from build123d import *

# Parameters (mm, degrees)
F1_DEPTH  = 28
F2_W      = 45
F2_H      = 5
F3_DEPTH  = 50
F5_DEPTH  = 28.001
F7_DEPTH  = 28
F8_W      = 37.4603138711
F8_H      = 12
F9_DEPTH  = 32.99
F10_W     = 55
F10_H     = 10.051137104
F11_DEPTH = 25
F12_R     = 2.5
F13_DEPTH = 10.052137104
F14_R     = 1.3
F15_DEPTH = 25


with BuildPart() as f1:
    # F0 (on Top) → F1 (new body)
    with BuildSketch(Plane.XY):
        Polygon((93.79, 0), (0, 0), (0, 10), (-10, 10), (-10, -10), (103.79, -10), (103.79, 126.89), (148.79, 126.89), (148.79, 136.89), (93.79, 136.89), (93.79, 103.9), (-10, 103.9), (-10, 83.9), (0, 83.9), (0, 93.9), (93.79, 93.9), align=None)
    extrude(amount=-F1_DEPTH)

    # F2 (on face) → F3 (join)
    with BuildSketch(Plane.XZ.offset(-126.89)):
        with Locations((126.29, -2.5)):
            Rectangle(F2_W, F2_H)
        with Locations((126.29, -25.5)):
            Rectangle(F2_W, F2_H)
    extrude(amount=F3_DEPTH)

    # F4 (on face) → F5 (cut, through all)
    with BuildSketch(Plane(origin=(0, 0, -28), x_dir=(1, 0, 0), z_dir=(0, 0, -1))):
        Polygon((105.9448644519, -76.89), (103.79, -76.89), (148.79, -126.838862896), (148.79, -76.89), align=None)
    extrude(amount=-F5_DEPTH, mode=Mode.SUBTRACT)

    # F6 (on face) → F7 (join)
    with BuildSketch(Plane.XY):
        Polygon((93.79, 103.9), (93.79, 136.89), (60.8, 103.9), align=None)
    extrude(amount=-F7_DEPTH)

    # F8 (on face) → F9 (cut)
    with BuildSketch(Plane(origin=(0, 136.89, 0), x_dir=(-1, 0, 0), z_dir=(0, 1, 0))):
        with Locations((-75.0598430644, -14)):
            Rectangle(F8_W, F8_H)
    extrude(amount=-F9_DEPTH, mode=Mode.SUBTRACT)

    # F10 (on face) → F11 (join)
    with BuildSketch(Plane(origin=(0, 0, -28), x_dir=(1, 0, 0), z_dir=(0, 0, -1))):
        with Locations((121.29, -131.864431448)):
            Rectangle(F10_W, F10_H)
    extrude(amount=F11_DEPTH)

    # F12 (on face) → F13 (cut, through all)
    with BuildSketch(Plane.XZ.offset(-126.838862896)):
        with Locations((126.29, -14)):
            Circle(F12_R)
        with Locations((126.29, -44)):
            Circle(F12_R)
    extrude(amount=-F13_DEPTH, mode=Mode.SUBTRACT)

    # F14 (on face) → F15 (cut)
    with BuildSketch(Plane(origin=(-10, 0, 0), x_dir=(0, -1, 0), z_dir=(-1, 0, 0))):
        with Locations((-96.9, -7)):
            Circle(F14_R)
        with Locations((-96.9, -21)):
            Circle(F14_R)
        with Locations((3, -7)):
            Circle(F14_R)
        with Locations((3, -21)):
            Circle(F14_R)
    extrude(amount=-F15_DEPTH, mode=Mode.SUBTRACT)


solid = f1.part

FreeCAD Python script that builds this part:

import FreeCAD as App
import Part
import Sketcher
Q = App.Units.Quantity

doc = App.newDocument("Part")
params = doc.addObject("Spreadsheet::Sheet", "Params")
for row, (alias, value) in enumerate([
    ("sketch1_width", "10 mm"),
    ("sketch1_width2", "45 mm"),
    ("sketch1_width3", "55 mm"),
    ("sketch1_height", "20 mm"),
    ("sketch1_height2", "93.9 mm"),
    ("pad1_length", "28 mm"),
    ("sketch2_width", "45 mm"),
    ("sketch2_height", "5 mm"),
    ("pad2_length", "50 mm"),
    ("sketch3_width", "45 mm"),
    ("sketch4_width", "32.99 mm"),
    ("pad3_length", "28 mm"),
    ("sketch5_height", "12 mm"),
    ("pocket2_length", "32.99 mm"),
    ("sketch6_width", "55 mm"),
    ("pad4_length", "25 mm"),
    ("sketch7_diameter", "5 mm"),
    ("sketch8_diameter", "2.6 mm"),
    ("pocket4_length", "25 mm"),
], start=1):
    params.set(f"A{row}", alias)
    params.set(f"B{row}", "=" + value)
    params.setAlias(f"B{row}", alias)

body = doc.addObject("PartDesign::Body", "Body")

sketch1 = doc.addObject("Sketcher::SketchObject", "Sketch")
body.addObject(sketch1)
sketch1.AttachmentSupport = (doc.XY_Plane, [""])
sketch1.MapMode = "FlatFace"
sketch1.addGeometry(Part.LineSegment(App.Vector(93.79, 0, 0), App.Vector(0, 0, 0)), False)
sketch1.addGeometry(Part.LineSegment(App.Vector(0, 0, 0), App.Vector(0, 10, 0)), False)
sketch1.addGeometry(Part.LineSegment(App.Vector(0, 10, 0), App.Vector(-10, 10, 0)), False)
sketch1.addGeometry(Part.LineSegment(App.Vector(-10, 10, 0), App.Vector(-10, -10, 0)), False)
sketch1.addGeometry(Part.LineSegment(App.Vector(-10, -10, 0), App.Vector(103.79, -10, 0)), False)
sketch1.addGeometry(Part.LineSegment(App.Vector(103.79, -10, 0), App.Vector(103.79, 126.89, 0)), False)
sketch1.addGeometry(Part.LineSegment(App.Vector(103.79, 126.89, 0), App.Vector(148.79, 126.89, 0)), False)
sketch1.addGeometry(Part.LineSegment(App.Vector(148.79, 126.89, 0), App.Vector(148.79, 136.89, 0)), False)
sketch1.addGeometry(Part.LineSegment(App.Vector(148.79, 136.89, 0), App.Vector(93.79, 136.89, 0)), False)
sketch1.addGeometry(Part.LineSegment(App.Vector(93.79, 136.89, 0), App.Vector(93.79, 103.9, 0)), False)
sketch1.addGeometry(Part.LineSegment(App.Vector(93.79, 103.9, 0), App.Vector(-10, 103.9, 0)), False)
sketch1.addGeometry(Part.LineSegment(App.Vector(-10, 103.9, 0), App.Vector(-10, 83.9, 0)), False)
sketch1.addGeometry(Part.LineSegment(App.Vector(-10, 83.9, 0), App.Vector(0, 83.9, 0)), False)
sketch1.addGeometry(Part.LineSegment(App.Vector(0, 83.9, 0), App.Vector(0, 93.9, 0)), False)
sketch1.addGeometry(Part.LineSegment(App.Vector(0, 93.9, 0), App.Vector(93.79, 93.9, 0)), False)
sketch1.addGeometry(Part.LineSegment(App.Vector(93.79, 93.9, 0), App.Vector(93.79, 0, 0)), False)
sketch1.addConstraint(Sketcher.Constraint("Coincident", 0, 2, 1, 1))
sketch1.addConstraint(Sketcher.Constraint("Coincident", 1, 2, 2, 1))
sketch1.addConstraint(Sketcher.Constraint("Coincident", 2, 2, 3, 1))
sketch1.addConstraint(Sketcher.Constraint("Coincident", 3, 2, 4, 1))
sketch1.addConstraint(Sketcher.Constraint("Coincident", 4, 2, 5, 1))
sketch1.addConstraint(Sketcher.Constraint("Coincident", 5, 2, 6, 1))
sketch1.addConstraint(Sketcher.Constraint("Coincident", 6, 2, 7, 1))
sketch1.addConstraint(Sketcher.Constraint("Coincident", 7, 2, 8, 1))
sketch1.addConstraint(Sketcher.Constraint("Coincident", 8, 2, 9, 1))
sketch1.addConstraint(Sketcher.Constraint("Coincident", 9, 2, 10, 1))
sketch1.addConstraint(Sketcher.Constraint("Coincident", 10, 2, 11, 1))
sketch1.addConstraint(Sketcher.Constraint("Coincident", 11, 2, 12, 1))
sketch1.addConstraint(Sketcher.Constraint("Coincident", 12, 2, 13, 1))
sketch1.addConstraint(Sketcher.Constraint("Coincident", 13, 2, 14, 1))
sketch1.addConstraint(Sketcher.Constraint("Coincident", 14, 2, 15, 1))
sketch1.addConstraint(Sketcher.Constraint("Coincident", 15, 2, 0, 1))
sketch1.addConstraint(Sketcher.Constraint("Horizontal", 0))
sketch1.addConstraint(Sketcher.Constraint("Vertical", 1))
sketch1.addConstraint(Sketcher.Constraint("Horizontal", 2))
sketch1.addConstraint(Sketcher.Constraint("Vertical", 3))
sketch1.addConstraint(Sketcher.Constraint("Horizontal", 4))
sketch1.addConstraint(Sketcher.Constraint("Vertical", 5))
sketch1.addConstraint(Sketcher.Constraint("Horizontal", 6))
sketch1.addConstraint(Sketcher.Constraint("Vertical", 7))
sketch1.addConstraint(Sketcher.Constraint("Horizontal", 8))
sketch1.addConstraint(Sketcher.Constraint("Vertical", 9))
sketch1.addConstraint(Sketcher.Constraint("Horizontal", 10))
sketch1.addConstraint(Sketcher.Constraint("Vertical", 11))
sketch1.addConstraint(Sketcher.Constraint("Horizontal", 12))
sketch1.addConstraint(Sketcher.Constraint("Vertical", 13))
sketch1.addConstraint(Sketcher.Constraint("Horizontal", 14))
sketch1.addConstraint(Sketcher.Constraint("Vertical", 15))
sketch1.addConstraint(Sketcher.Constraint("Coincident", 0, 2, -1, 1))
sketch1.addConstraint(Sketcher.Constraint("PointOnObject", 12, 2, -2))
sketch1.addConstraint(Sketcher.Constraint("Vertical", 3, 2, 10, 2))
sketch1.addConstraint(Sketcher.Constraint("Vertical", 9, 2, 14, 2))
sketch1.addConstraint(Sketcher.Constraint("Equal", 12, 1))
sketch1.addConstraint(Sketcher.Constraint("Equal", 1, 7))
sketch1.addConstraint(Sketcher.Constraint("Equal", 3, 11))
sketch1.addConstraint(Sketcher.Constraint("Equal", 7, 13))
sketch1.addConstraint(Sketcher.Constraint("DistanceX", 2, 2, 2, 1, Q("10 mm")))
sketch1.addConstraint(Sketcher.Constraint("DistanceX", 6, 1, 6, 2, Q("45 mm")))
sketch1.addConstraint(Sketcher.Constraint("DistanceX", 8, 2, 8, 1, Q("55 mm")))
sketch1.addConstraint(Sketcher.Constraint("DistanceY", 3, 2, 3, 1, Q("20 mm")))
sketch1.addConstraint(Sketcher.Constraint("DistanceY", 15, 2, 15, 1, Q("93.9 mm")))
sketch1.addConstraint(Sketcher.Constraint("DistanceX", 0, 2, 0, 1, Q("93.79 mm")))
sketch1.addConstraint(Sketcher.Constraint("DistanceY", 5, 1, 5, 2, Q("136.89 mm")))
sketch1.setExpression("Constraints[40]", "Params.sketch1_width")
sketch1.setExpression("Constraints[41]", "Params.sketch1_width2")
sketch1.setExpression("Constraints[42]", "Params.sketch1_width3")
sketch1.setExpression("Constraints[43]", "Params.sketch1_height")
sketch1.setExpression("Constraints[44]", "Params.sketch1_height2")
pad1 = doc.addObject("PartDesign::Pad", "Pad")
body.addObject(pad1)
pad1.Profile = sketch1
pad1.setExpression("Length", "Params.pad1_length")
pad1.Reversed = True

sketch2 = doc.addObject("Sketcher::SketchObject", "Sketch001")
body.addObject(sketch2)
sketch2.AttachmentSupport = (doc.XZ_Plane, [""])
sketch2.MapMode = "FlatFace"
sketch2.AttachmentOffset = App.Placement(App.Vector(0, 0, -126.89), App.Rotation())
sketch2.addGeometry(Part.LineSegment(App.Vector(103.79, 0, 0), App.Vector(103.79, -5, 0)), False)
sketch2.addGeometry(Part.LineSegment(App.Vector(103.79, -5, 0), App.Vector(148.79, -5, 0)), False)
sketch2.addGeometry(Part.LineSegment(App.Vector(148.79, -5, 0), App.Vector(148.79, 0, 0)), False)
sketch2.addGeometry(Part.LineSegment(App.Vector(148.79, 0, 0), App.Vector(103.79, 0, 0)), False)
sketch2.addGeometry(Part.LineSegment(App.Vector(103.79, -23, 0), App.Vector(103.79, -28, 0)), False)
sketch2.addGeometry(Part.LineSegment(App.Vector(103.79, -28, 0), App.Vector(148.79, -28, 0)), False)
sketch2.addGeometry(Part.LineSegment(App.Vector(148.79, -28, 0), App.Vector(148.79, -23, 0)), False)
sketch2.addGeometry(Part.LineSegment(App.Vector(148.79, -23, 0), App.Vector(103.79, -23, 0)), False)
sketch2.addConstraint(Sketcher.Constraint("Coincident", 0, 2, 1, 1))
sketch2.addConstraint(Sketcher.Constraint("Coincident", 1, 2, 2, 1))
sketch2.addConstraint(Sketcher.Constraint("Coincident", 2, 2, 3, 1))
sketch2.addConstraint(Sketcher.Constraint("Coincident", 3, 2, 0, 1))
sketch2.addConstraint(Sketcher.Constraint("Coincident", 4, 2, 5, 1))
sketch2.addConstraint(Sketcher.Constraint("Coincident", 5, 2, 6, 1))
sketch2.addConstraint(Sketcher.Constraint("Coincident", 6, 2, 7, 1))
sketch2.addConstraint(Sketcher.Constraint("Coincident", 7, 2, 4, 1))
sketch2.addConstraint(Sketcher.Constraint("Vertical", 0))
sketch2.addConstraint(Sketcher.Constraint("Horizontal", 1))
sketch2.addConstraint(Sketcher.Constraint("Vertical", 2))
sketch2.addConstraint(Sketcher.Constraint("Horizontal", 3))
sketch2.addConstraint(Sketcher.Constraint("Vertical", 4))
sketch2.addConstraint(Sketcher.Constraint("Horizontal", 5))
sketch2.addConstraint(Sketcher.Constraint("Vertical", 6))
sketch2.addConstraint(Sketcher.Constraint("Horizontal", 7))
sketch2.addConstraint(Sketcher.Constraint("PointOnObject", 2, 2, -1))
sketch2.addConstraint(Sketcher.Constraint("Vertical", 3, 2, 4, 2))
sketch2.addConstraint(Sketcher.Constraint("Vertical", 2, 2, 5, 2))
sketch2.addConstraint(Sketcher.Constraint("Equal", 2, 4))
sketch2.addConstraint(Sketcher.Constraint("DistanceX", 1, 1, 1, 2, Q("45 mm")))
sketch2.addConstraint(Sketcher.Constraint("DistanceY", 0, 2, 0, 1, Q("5 mm")))
sketch2.addConstraint(Sketcher.Constraint("DistanceY", 4, 2, -1, 1, Q("28 mm")))
sketch2.addConstraint(Sketcher.Constraint("DistanceX", -1, 1, 0, 2, Q("103.79 mm")))
sketch2.setExpression("Constraints[20]", "Params.sketch2_width")
sketch2.setExpression("Constraints[21]", "Params.sketch2_height")
pad2 = doc.addObject("PartDesign::Pad", "Pad001")
body.addObject(pad2)
pad2.Profile = sketch2
pad2.setExpression("Length", "Params.pad2_length")

sketch3 = doc.addObject("Sketcher::SketchObject", "Sketch002")
body.addObject(sketch3)
sketch3.AttachmentSupport = (doc.XY_Plane, [""])
sketch3.MapMode = "FlatFace"
sketch3.AttachmentOffset = App.Placement(App.Vector(0, 0, -28), App.Rotation())
sketch3.addGeometry(Part.LineSegment(App.Vector(103.79, 76.89, 0), App.Vector(148.79, 126.838863, 0)), False)
sketch3.addGeometry(Part.LineSegment(App.Vector(148.79, 126.838863, 0), App.Vector(148.79, 76.89, 0)), False)
sketch3.addGeometry(Part.LineSegment(App.Vector(148.79, 76.89, 0), App.Vector(103.79, 76.89, 0)), False)
sketch3.addConstraint(Sketcher.Constraint("Coincident", 0, 2, 1, 1))
sketch3.addConstraint(Sketcher.Constraint("Coincident", 1, 2, 2, 1))
sketch3.addConstraint(Sketcher.Constraint("Coincident", 2, 2, 0, 1))
sketch3.addConstraint(Sketcher.Constraint("Vertical", 1))
sketch3.addConstraint(Sketcher.Constraint("Horizontal", 2))
sketch3.addConstraint(Sketcher.Constraint("DistanceX", 2, 2, 2, 1, Q("45 mm")))
sketch3.addConstraint(Sketcher.Constraint("DistanceX", -1, 1, 0, 2, Q("148.79 mm")))
sketch3.addConstraint(Sketcher.Constraint("DistanceY", -1, 1, 1, 2, Q("76.89 mm")))
sketch3.addConstraint(Sketcher.Constraint("Distance", 0, Q("67.230119 mm")))
sketch3.setExpression("Constraints[5]", "Params.sketch3_width")
pocket1 = doc.addObject("PartDesign::Pocket", "Pocket")
body.addObject(pocket1)
pocket1.Profile = sketch3
pocket1.Type = "ThroughAll"
pocket1.Reversed = True

sketch4 = doc.addObject("Sketcher::SketchObject", "Sketch003")
body.addObject(sketch4)
sketch4.AttachmentSupport = (doc.XY_Plane, [""])
sketch4.MapMode = "FlatFace"
sketch4.addGeometry(Part.LineSegment(App.Vector(93.79, 103.9, 0), App.Vector(93.79, 136.89, 0)), False)
sketch4.addGeometry(Part.LineSegment(App.Vector(93.79, 136.89, 0), App.Vector(60.8, 103.9, 0)), False)
sketch4.addGeometry(Part.LineSegment(App.Vector(60.8, 103.9, 0), App.Vector(93.79, 103.9, 0)), False)
sketch4.addConstraint(Sketcher.Constraint("Coincident", 0, 2, 1, 1))
sketch4.addConstraint(Sketcher.Constraint("Coincident", 1, 2, 2, 1))
sketch4.addConstraint(Sketcher.Constraint("Coincident", 2, 2, 0, 1))
sketch4.addConstraint(Sketcher.Constraint("Vertical", 0))
sketch4.addConstraint(Sketcher.Constraint("Horizontal", 2))
sketch4.addConstraint(Sketcher.Constraint("Equal", 2, 0))
sketch4.addConstraint(Sketcher.Constraint("DistanceX", 2, 1, 2, 2, Q("32.99 mm")))
sketch4.addConstraint(Sketcher.Constraint("DistanceX", -1, 1, 1, 2, Q("60.8 mm")))
sketch4.addConstraint(Sketcher.Constraint("DistanceY", -1, 1, 1, 2, Q("103.9 mm")))
sketch4.setExpression("Constraints[6]", "Params.sketch4_width")
pad3 = doc.addObject("PartDesign::Pad", "Pad002")
body.addObject(pad3)
pad3.Profile = sketch4
pad3.setExpression("Length", "Params.pad3_length")
pad3.Reversed = True

sketch5 = doc.addObject("Sketcher::SketchObject", "Sketch004")
body.addObject(sketch5)
sketch5.AttachmentSupport = (doc.XZ_Plane, [""])
sketch5.MapMode = "FlatFace"
sketch5.AttachmentOffset = App.Placement(App.Vector(0, 0, -136.89), App.Rotation())
sketch5.addGeometry(Part.LineSegment(App.Vector(93.79, -8, 0), App.Vector(93.79, -20, 0)), False)
sketch5.addGeometry(Part.LineSegment(App.Vector(93.79, -20, 0), App.Vector(56.329686, -20, 0)), False)
sketch5.addGeometry(Part.LineSegment(App.Vector(56.329686, -20, 0), App.Vector(56.329686, -8, 0)), False)
sketch5.addGeometry(Part.LineSegment(App.Vector(56.329686, -8, 0), App.Vector(93.79, -8, 0)), False)
sketch5.addConstraint(Sketcher.Constraint("Coincident", 0, 2, 1, 1))
sketch5.addConstraint(Sketcher.Constraint("Coincident", 1, 2, 2, 1))
sketch5.addConstraint(Sketcher.Constraint("Coincident", 2, 2, 3, 1))
sketch5.addConstraint(Sketcher.Constraint("Coincident", 3, 2, 0, 1))
sketch5.addConstraint(Sketcher.Constraint("Vertical", 0))
sketch5.addConstraint(Sketcher.Constraint("Horizontal", 1))
sketch5.addConstraint(Sketcher.Constraint("Vertical", 2))
sketch5.addConstraint(Sketcher.Constraint("Horizontal", 3))
sketch5.addConstraint(Sketcher.Constraint("DistanceY", 0, 2, 0, 1, Q("12 mm")))
sketch5.addConstraint(Sketcher.Constraint("DistanceY", 0, 2, -1, 1, Q("20 mm")))
sketch5.addConstraint(Sketcher.Constraint("DistanceX", -1, 1, 0, 2, Q("93.79 mm")))
sketch5.addConstraint(Sketcher.Constraint("DistanceX", 1, 2, 1, 1, Q("37.460314 mm")))
sketch5.setExpression("Constraints[8]", "Params.sketch5_height")
pocket2 = doc.addObject("PartDesign::Pocket", "Pocket001")
body.addObject(pocket2)
pocket2.Profile = sketch5
pocket2.setExpression("Length", "Params.pocket2_length")
pocket2.Reversed = True

sketch6 = doc.addObject("Sketcher::SketchObject", "Sketch005")
body.addObject(sketch6)
sketch6.AttachmentSupport = (doc.XY_Plane, [""])
sketch6.MapMode = "FlatFace"
sketch6.AttachmentOffset = App.Placement(App.Vector(0, 0, -28), App.Rotation())
sketch6.addGeometry(Part.LineSegment(App.Vector(93.79, 126.838863, 0), App.Vector(93.79, 136.89, 0)), False)
sketch6.addGeometry(Part.LineSegment(App.Vector(93.79, 136.89, 0), App.Vector(148.79, 136.89, 0)), False)
sketch6.addGeometry(Part.LineSegment(App.Vector(148.79, 136.89, 0), App.Vector(148.79, 126.838863, 0)), False)
sketch6.addGeometry(Part.LineSegment(App.Vector(148.79, 126.838863, 0), App.Vector(93.79, 126.838863, 0)), False)
sketch6.addConstraint(Sketcher.Constraint("Coincident", 0, 2, 1, 1))
sketch6.addConstraint(Sketcher.Constraint("Coincident", 1, 2, 2, 1))
sketch6.addConstraint(Sketcher.Constraint("Coincident", 2, 2, 3, 1))
sketch6.addConstraint(Sketcher.Constraint("Coincident", 3, 2, 0, 1))
sketch6.addConstraint(Sketcher.Constraint("Vertical", 0))
sketch6.addConstraint(Sketcher.Constraint("Horizontal", 1))
sketch6.addConstraint(Sketcher.Constraint("Vertical", 2))
sketch6.addConstraint(Sketcher.Constraint("Horizontal", 3))
sketch6.addConstraint(Sketcher.Constraint("DistanceX", 1, 1, 1, 2, Q("55 mm")))
sketch6.addConstraint(Sketcher.Constraint("DistanceX", -1, 1, 0, 2, Q("93.79 mm")))
sketch6.addConstraint(Sketcher.Constraint("DistanceY", -1, 1, 0, 2, Q("136.89 mm")))
sketch6.addConstraint(Sketcher.Constraint("DistanceY", 0, 1, 0, 2, Q("10.051137 mm")))
sketch6.setExpression("Constraints[8]", "Params.sketch6_width")
pad4 = doc.addObject("PartDesign::Pad", "Pad003")
body.addObject(pad4)
pad4.Profile = sketch6
pad4.setExpression("Length", "Params.pad4_length")
pad4.Reversed = True

sketch7 = doc.addObject("Sketcher::SketchObject", "Sketch006")
body.addObject(sketch7)
sketch7.AttachmentSupport = (doc.XZ_Plane, [""])
sketch7.MapMode = "FlatFace"
sketch7.AttachmentOffset = App.Placement(App.Vector(0, 0, -126.838863), App.Rotation())
sketch7.addGeometry(Part.Circle(App.Vector(126.29, -14, 0), App.Vector(0, 0, 1), 2.5), False)
sketch7.addGeometry(Part.Circle(App.Vector(126.29, -44, 0), App.Vector(0, 0, 1), 2.5), False)
sketch7.addConstraint(Sketcher.Constraint("Equal", 0, 1))
sketch7.addConstraint(Sketcher.Constraint("Vertical", 0, 3, 1, 3))
sketch7.addConstraint(Sketcher.Constraint("Diameter", 0, Q("5 mm")))
sketch7.addConstraint(Sketcher.Constraint("DistanceY", 0, 3, -1, 1, Q("14 mm")))
sketch7.addConstraint(Sketcher.Constraint("DistanceY", 1, 3, -1, 1, Q("44 mm")))
sketch7.addConstraint(Sketcher.Constraint("DistanceX", -1, 1, 0, 3, Q("126.29 mm")))
sketch7.setExpression("Constraints[2]", "Params.sketch7_diameter")
pocket3 = doc.addObject("PartDesign::Pocket", "Pocket002")
body.addObject(pocket3)
pocket3.Profile = sketch7
pocket3.Type = "ThroughAll"

sketch8 = doc.addObject("Sketcher::SketchObject", "Sketch007")
body.addObject(sketch8)
sketch8.AttachmentSupport = (doc.YZ_Plane, [""])
sketch8.MapMode = "FlatFace"
sketch8.AttachmentOffset = App.Placement(App.Vector(0, 0, -10), App.Rotation())
sketch8.addGeometry(Part.Circle(App.Vector(96.9, -7, 0), App.Vector(0, 0, 1), 1.3), False)
sketch8.addGeometry(Part.Circle(App.Vector(96.9, -21, 0), App.Vector(0, 0, 1), 1.3), False)
sketch8.addGeometry(Part.Circle(App.Vector(-3, -7, 0), App.Vector(0, 0, 1), 1.3), False)
sketch8.addGeometry(Part.Circle(App.Vector(-3, -21, 0), App.Vector(0, 0, 1), 1.3), False)
sketch8.addConstraint(Sketcher.Constraint("Equal", 0, 1))
sketch8.addConstraint(Sketcher.Constraint("Equal", 1, 2))
sketch8.addConstraint(Sketcher.Constraint("Equal", 2, 3))
sketch8.addConstraint(Sketcher.Constraint("Horizontal", 0, 3, 2, 3))
sketch8.addConstraint(Sketcher.Constraint("Horizontal", 1, 3, 3, 3))
sketch8.addConstraint(Sketcher.Constraint("Vertical", 0, 3, 1, 3))
sketch8.addConstraint(Sketcher.Constraint("Vertical", 2, 3, 3, 3))
sketch8.addConstraint(Sketcher.Constraint("Diameter", 0, Q("2.6 mm")))
sketch8.addConstraint(Sketcher.Constraint("DistanceY", 0, 3, -1, 1, Q("7 mm")))
sketch8.addConstraint(Sketcher.Constraint("DistanceY", 1, 3, -1, 1, Q("21 mm")))
sketch8.addConstraint(Sketcher.Constraint("DistanceX", 2, 3, -1, 1, Q("3 mm")))
sketch8.addConstraint(Sketcher.Constraint("DistanceX", -1, 1, 0, 3, Q("96.9 mm")))
sketch8.setExpression("Constraints[7]", "Params.sketch8_diameter")
pocket4 = doc.addObject("PartDesign::Pocket", "Pocket003")
body.addObject(pocket4)
pocket4.Profile = sketch8
pocket4.setExpression("Length", "Params.pocket4_length")
pocket4.Reversed = True

doc.recompute()
